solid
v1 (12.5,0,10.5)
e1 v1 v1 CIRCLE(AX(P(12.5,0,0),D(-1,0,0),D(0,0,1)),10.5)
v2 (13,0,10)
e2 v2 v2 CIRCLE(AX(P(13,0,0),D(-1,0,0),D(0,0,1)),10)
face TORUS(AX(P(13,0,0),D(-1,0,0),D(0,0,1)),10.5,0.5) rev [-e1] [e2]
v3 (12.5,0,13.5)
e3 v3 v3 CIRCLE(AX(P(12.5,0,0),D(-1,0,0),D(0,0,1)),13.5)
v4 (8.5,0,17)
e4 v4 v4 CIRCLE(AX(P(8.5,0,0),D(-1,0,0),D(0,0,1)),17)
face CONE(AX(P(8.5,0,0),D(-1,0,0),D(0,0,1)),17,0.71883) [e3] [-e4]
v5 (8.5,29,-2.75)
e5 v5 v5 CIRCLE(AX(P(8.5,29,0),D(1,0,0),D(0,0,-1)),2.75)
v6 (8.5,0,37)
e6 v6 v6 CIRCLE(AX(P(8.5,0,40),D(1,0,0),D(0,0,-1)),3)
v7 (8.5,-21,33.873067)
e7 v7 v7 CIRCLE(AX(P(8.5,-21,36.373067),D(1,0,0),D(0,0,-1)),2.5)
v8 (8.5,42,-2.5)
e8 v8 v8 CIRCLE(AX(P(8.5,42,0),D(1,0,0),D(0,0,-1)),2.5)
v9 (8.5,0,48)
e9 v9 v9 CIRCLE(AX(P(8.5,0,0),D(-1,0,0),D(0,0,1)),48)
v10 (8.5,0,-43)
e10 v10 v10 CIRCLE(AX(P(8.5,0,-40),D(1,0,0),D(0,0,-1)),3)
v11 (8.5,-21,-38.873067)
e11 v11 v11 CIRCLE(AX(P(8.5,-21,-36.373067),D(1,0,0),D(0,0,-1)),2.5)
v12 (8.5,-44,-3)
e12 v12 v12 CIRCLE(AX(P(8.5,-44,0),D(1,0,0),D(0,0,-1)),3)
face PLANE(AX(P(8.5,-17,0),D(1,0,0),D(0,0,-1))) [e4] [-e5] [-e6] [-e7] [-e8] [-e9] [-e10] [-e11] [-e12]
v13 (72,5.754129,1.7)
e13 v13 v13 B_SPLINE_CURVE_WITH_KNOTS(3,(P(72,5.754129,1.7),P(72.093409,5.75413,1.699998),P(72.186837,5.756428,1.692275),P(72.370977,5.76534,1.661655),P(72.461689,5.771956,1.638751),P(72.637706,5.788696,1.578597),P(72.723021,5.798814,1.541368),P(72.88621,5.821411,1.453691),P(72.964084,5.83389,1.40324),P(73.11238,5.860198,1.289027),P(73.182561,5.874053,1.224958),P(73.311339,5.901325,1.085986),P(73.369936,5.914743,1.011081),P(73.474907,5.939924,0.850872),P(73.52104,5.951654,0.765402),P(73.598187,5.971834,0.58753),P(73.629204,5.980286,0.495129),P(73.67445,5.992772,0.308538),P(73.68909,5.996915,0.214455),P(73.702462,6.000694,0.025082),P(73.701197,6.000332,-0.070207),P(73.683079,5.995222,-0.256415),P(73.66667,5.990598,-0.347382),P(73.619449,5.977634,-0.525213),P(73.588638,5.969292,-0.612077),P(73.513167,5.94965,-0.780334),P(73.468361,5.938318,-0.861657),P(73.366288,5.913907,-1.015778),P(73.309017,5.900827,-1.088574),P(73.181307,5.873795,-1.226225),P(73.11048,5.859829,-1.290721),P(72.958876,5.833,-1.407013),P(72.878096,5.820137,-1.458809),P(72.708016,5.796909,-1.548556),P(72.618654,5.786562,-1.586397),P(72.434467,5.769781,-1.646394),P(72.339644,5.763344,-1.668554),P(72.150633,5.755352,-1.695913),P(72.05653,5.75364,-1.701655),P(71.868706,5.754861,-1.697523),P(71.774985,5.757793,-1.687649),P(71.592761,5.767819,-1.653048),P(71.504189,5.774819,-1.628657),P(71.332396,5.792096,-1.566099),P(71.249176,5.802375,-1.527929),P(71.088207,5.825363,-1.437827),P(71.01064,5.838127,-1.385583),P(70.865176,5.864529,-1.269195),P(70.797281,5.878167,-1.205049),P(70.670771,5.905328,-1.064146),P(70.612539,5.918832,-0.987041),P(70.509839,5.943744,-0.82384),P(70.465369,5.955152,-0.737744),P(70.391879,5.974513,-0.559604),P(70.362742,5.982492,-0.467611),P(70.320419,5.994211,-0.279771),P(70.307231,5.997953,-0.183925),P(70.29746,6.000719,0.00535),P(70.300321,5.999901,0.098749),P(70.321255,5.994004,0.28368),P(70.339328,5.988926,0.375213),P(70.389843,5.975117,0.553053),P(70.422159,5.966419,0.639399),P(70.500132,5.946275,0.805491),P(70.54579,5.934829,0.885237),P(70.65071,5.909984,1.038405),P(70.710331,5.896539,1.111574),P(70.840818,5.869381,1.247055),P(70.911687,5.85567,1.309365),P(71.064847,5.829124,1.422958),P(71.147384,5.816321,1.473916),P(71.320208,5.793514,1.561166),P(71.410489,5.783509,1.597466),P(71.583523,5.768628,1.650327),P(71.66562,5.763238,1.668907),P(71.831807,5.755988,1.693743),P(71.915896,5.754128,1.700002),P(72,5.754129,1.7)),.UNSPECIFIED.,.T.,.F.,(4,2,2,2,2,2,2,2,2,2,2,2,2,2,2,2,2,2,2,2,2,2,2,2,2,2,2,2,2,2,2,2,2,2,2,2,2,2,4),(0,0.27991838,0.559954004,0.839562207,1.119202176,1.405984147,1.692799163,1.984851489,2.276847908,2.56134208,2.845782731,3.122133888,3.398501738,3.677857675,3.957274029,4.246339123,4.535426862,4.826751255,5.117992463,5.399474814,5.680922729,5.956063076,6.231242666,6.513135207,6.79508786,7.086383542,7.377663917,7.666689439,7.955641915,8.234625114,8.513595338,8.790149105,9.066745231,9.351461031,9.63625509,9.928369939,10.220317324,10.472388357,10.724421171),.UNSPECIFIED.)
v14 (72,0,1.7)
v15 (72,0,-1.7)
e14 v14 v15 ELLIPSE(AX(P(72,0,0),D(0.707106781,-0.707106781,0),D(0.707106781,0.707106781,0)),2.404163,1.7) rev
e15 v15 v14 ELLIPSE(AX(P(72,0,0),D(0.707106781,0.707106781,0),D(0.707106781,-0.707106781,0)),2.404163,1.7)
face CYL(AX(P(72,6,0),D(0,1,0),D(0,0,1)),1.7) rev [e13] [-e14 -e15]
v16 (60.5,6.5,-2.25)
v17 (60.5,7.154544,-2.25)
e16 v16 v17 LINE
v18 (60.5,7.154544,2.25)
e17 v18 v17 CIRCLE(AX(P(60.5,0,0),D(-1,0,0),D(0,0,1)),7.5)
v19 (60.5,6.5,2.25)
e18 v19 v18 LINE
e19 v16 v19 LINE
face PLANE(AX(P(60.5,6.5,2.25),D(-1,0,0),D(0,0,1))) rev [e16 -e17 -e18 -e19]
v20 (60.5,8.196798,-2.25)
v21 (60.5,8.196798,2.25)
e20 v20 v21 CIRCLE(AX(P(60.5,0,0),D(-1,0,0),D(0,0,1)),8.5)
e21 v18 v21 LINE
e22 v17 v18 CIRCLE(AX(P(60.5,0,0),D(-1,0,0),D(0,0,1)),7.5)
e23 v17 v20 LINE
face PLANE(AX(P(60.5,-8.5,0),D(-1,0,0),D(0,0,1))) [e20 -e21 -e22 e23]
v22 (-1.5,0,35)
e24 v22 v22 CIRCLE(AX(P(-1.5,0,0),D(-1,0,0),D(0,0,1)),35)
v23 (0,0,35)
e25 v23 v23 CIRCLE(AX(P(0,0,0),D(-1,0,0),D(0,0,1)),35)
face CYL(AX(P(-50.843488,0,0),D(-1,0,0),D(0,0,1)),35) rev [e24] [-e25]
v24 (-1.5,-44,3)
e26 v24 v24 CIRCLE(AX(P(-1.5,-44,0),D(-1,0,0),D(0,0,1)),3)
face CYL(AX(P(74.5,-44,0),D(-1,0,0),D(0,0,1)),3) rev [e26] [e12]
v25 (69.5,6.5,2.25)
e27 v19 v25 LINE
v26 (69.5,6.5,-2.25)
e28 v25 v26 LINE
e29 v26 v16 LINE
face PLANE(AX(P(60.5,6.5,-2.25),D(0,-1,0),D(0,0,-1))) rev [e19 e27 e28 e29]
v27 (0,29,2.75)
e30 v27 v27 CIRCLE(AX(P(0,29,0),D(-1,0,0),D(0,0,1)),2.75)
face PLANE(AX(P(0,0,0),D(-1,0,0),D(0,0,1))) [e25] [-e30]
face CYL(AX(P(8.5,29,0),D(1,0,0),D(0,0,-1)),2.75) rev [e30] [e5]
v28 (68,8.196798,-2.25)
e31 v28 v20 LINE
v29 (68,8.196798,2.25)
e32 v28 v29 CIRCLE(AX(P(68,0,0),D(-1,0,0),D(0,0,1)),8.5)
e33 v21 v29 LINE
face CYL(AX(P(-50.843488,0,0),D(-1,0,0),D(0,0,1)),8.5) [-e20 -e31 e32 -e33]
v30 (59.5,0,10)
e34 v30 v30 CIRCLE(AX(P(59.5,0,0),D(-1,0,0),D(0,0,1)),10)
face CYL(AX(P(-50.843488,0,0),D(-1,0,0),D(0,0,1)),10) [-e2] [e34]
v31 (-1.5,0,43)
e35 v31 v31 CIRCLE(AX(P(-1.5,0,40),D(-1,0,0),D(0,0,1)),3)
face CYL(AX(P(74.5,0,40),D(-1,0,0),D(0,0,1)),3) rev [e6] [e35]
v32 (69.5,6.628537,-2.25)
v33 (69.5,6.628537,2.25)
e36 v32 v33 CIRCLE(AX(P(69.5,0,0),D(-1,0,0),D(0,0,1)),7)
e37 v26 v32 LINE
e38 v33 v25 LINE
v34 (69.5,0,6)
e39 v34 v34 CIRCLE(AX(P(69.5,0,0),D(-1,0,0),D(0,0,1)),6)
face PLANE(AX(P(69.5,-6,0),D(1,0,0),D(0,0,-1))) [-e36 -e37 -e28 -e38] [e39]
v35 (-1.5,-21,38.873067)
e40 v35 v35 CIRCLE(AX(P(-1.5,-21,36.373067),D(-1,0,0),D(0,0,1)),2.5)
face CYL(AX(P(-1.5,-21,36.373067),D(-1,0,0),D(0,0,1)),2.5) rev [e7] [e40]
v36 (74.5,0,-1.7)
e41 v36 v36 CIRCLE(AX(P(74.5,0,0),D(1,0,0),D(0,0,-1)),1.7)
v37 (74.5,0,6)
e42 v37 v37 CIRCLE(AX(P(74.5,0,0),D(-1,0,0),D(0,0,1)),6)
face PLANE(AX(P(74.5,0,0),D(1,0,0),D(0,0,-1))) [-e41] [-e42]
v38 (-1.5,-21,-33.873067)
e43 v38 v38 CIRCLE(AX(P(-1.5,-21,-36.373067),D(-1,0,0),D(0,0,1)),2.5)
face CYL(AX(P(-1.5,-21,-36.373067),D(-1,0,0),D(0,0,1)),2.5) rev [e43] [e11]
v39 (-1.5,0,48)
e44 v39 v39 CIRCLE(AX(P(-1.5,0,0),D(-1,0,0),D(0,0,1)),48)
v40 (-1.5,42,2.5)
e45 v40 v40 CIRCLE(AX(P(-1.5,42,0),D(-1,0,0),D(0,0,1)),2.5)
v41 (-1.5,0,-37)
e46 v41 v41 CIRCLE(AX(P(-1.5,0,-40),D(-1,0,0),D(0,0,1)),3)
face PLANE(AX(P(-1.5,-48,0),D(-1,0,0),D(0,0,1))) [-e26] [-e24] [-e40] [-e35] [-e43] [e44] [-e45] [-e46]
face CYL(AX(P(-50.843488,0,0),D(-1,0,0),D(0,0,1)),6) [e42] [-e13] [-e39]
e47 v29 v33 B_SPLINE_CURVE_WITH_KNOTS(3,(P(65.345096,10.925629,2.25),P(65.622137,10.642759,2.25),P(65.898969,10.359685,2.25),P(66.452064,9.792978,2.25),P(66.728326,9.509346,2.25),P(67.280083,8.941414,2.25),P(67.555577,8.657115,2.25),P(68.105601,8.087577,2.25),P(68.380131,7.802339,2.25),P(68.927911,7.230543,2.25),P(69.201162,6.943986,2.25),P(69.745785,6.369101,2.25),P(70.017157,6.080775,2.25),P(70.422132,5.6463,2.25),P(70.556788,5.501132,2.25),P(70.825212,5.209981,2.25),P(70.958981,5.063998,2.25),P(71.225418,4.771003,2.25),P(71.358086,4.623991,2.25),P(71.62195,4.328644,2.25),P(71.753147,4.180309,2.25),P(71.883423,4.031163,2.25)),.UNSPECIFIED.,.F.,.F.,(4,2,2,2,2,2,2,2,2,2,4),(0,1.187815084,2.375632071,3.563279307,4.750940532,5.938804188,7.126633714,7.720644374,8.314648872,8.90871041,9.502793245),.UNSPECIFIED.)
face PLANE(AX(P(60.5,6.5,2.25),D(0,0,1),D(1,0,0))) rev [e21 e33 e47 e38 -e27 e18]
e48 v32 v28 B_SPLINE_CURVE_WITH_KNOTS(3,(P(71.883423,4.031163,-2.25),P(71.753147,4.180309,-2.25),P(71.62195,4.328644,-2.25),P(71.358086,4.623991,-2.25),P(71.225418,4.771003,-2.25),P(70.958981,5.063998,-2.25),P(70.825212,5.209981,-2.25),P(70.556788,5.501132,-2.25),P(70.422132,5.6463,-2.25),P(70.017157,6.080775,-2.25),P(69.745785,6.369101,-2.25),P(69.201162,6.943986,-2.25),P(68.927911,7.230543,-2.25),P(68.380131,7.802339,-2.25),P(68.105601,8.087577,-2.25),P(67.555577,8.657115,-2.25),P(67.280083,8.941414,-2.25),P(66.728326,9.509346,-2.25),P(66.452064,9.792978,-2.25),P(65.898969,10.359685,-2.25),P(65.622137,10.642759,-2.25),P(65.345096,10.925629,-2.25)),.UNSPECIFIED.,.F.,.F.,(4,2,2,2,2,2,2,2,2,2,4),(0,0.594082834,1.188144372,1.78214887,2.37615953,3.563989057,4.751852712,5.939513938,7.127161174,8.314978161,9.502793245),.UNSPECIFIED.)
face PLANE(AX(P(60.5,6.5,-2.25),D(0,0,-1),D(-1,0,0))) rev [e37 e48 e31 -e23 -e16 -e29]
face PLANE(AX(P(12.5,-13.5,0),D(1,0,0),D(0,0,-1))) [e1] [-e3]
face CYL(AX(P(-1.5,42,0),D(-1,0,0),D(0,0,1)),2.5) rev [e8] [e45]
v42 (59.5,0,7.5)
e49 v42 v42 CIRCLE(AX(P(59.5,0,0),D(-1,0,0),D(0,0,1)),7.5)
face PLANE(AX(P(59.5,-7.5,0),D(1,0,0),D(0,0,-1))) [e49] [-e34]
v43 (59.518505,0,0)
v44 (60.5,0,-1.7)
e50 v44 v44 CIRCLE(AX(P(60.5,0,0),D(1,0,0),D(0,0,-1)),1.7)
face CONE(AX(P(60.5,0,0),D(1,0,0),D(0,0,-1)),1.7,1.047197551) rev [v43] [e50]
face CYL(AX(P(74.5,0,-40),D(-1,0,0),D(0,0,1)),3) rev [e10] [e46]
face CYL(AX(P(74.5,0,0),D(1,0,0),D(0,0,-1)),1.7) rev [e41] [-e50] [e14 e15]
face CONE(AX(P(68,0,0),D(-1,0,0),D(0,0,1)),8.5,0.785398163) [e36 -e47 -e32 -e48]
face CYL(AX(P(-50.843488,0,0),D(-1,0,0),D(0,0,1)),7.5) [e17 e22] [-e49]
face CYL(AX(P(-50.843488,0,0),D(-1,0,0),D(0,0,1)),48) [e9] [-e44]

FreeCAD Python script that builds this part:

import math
import FreeCAD as App
import Part
import Sketcher

V = App.Vector
Q = App.Units.Quantity

doc = App.newDocument("Part")
body = doc.addObject("PartDesign::Body", "Body")

sketch1 = doc.addObject("Sketcher::SketchObject", "Sketch")
body.addObject(sketch1)
sketch1.AttachmentSupport = (doc.XY_Plane, [""])
sketch1.MapMode = "FlatFace"
sketch1.addGeometry(Part.LineSegment(V(74.5, 0, 0), V(0, 0, 0)), False)
sketch1.addGeometry(Part.LineSegment(V(0, 0, 0), V(0, -35, 0)), False)
sketch1.addGeometry(Part.LineSegment(V(0, -35, 0), V(-1.5, -35, 0)), False)
sketch1.addGeometry(Part.LineSegment(V(-1.5, -35, 0), V(-1.5, -48, 0)), False)
sketch1.addGeometry(Part.LineSegment(V(-1.5, -48, 0), V(8.5, -48, 0)), False)
sketch1.addGeometry(Part.LineSegment(V(8.5, -48, 0), V(8.5, -17, 0)), False)
sketch1.addGeometry(Part.LineSegment(V(8.5, -17, 0), V(12.5, -13.5, 0)), False)
sketch1.addGeometry(Part.LineSegment(V(12.5, -13.5, 0), V(12.5, -10.5, 0)), False)
sketch1.addGeometry(Part.ArcOfCircle(Part.Circle(V(13, -10.5, 0), V(0, 0, 1), 0.5), math.radians(90), math.radians(180)), False)
sketch1.addGeometry(Part.LineSegment(V(13, -10, 0), V(59.5, -10, 0)), False)
sketch1.addGeometry(Part.LineSegment(V(59.5, -10, 0), V(59.5, -7.5, 0)), False)
sketch1.addGeometry(Part.LineSegment(V(59.5, -7.5, 0), V(60.5, -7.5, 0)), False)
sketch1.addGeometry(Part.LineSegment(V(60.5, -7.5, 0), V(60.5, -8.5, 0)), False)
sketch1.addGeometry(Part.LineSegment(V(60.5, -8.5, 0), V(68, -8.5, 0)), False)
sketch1.addGeometry(Part.LineSegment(V(68, -8.5, 0), V(69.5, -7, 0)), False)
sketch1.addGeometry(Part.LineSegment(V(69.5, -7, 0), V(69.5, -6, 0)), False)
sketch1.addGeometry(Part.LineSegment(V(69.5, -6, 0), V(74.5, -6, 0)), False)
sketch1.addGeometry(Part.LineSegment(V(74.5, -6, 0), V(74.5, 0, 0)), False)
sketch1.addConstraint(Sketcher.Constraint("Coincident", 0, 2, 1, 1))
sketch1.addConstraint(Sketcher.Constraint("Coincident", 1, 2, 2, 1))
sketch1.addConstraint(Sketcher.Constraint("Coincident", 2, 2, 3, 1))
sketch1.addConstraint(Sketcher.Constraint("Coincident", 3, 2, 4, 1))
sketch1.addConstraint(Sketcher.Constraint("Coincident", 4, 2, 5, 1))
sketch1.addConstraint(Sketcher.Constraint("Coincident", 5, 2, 6, 1))
sketch1.addConstraint(Sketcher.Constraint("Coincident", 6, 2, 7, 1))
sketch1.addConstraint(Sketcher.Constraint("Tangent", 7, 2, 8, 2))
sketch1.addConstraint(Sketcher.Constraint("Tangent", 8, 1, 9, 1))
sketch1.addConstraint(Sketcher.Constraint("Coincident", 9, 2, 10, 1))
sketch1.addConstraint(Sketcher.Constraint("Coincident", 10, 2, 11, 1))
sketch1.addConstraint(Sketcher.Constraint("Coincident", 11, 2, 12, 1))
sketch1.addConstraint(Sketcher.Constraint("Coincident", 12, 2, 13, 1))
sketch1.addConstraint(Sketcher.Constraint("Coincident", 13, 2, 14, 1))
sketch1.addConstraint(Sketcher.Constraint("Coincident", 14, 2, 15, 1))
sketch1.addConstraint(Sketcher.Constraint("Coincident", 15, 2, 16, 1))
sketch1.addConstraint(Sketcher.Constraint("Coincident", 16, 2, 17, 1))
sketch1.addConstraint(Sketcher.Constraint("Coincident", 17, 2, 0, 1))
sketch1.addConstraint(Sketcher.Constraint("Horizontal", 0))
sketch1.addConstraint(Sketcher.Constraint("Vertical", 1))
sketch1.addConstraint(Sketcher.Constraint("Horizontal", 2))
sketch1.addConstraint(Sketcher.Constraint("Vertical", 3))
sketch1.addConstraint(Sketcher.Constraint("Horizontal", 4))
sketch1.addConstraint(Sketcher.Constraint("Vertical", 5))
sketch1.addConstraint(Sketcher.Constraint("Vertical", 7))
sketch1.addConstraint(Sketcher.Constraint("Horizontal", 9))
sketch1.addConstraint(Sketcher.Constraint("Vertical", 10))
sketch1.addConstraint(Sketcher.Constraint("Horizontal", 11))
sketch1.addConstraint(Sketcher.Constraint("Vertical", 12))
sketch1.addConstraint(Sketcher.Constraint("Horizontal", 13))
sketch1.addConstraint(Sketcher.Constraint("Vertical", 15))
sketch1.addConstraint(Sketcher.Constraint("Horizontal", 16))
sketch1.addConstraint(Sketcher.Constraint("Vertical", 17))
sketch1.addConstraint(Sketcher.Constraint("Coincident", 0, 2, -1, 1))
sketch1.addConstraint(Sketcher.Constraint("Equal", 11, 12))
sketch1.addConstraint(Sketcher.Constraint("Equal", 12, 15))
sketch1.addConstraint(Sketcher.Constraint("Radius", 8, Q("0.5 mm")))
sketch1.addConstraint(Sketcher.Constraint("DistanceX", 4, 1, 4, 2, Q("10 mm")))
sketch1.addConstraint(Sketcher.Constraint("DistanceX", 11, 1, 11, 2, Q("1 mm")))
sketch1.addConstraint(Sketcher.Constraint("DistanceX", 16, 1, 16, 2, Q("5 mm")))
sketch1.addConstraint(Sketcher.Constraint("DistanceY", 1, 2, 1, 1, Q("35 mm")))
sketch1.addConstraint(Sketcher.Constraint("DistanceY", 3, 2, 3, 1, Q("13 mm")))
sketch1.addConstraint(Sketcher.Constraint("DistanceY", 5, 1, 5, 2, Q("31 mm")))
sketch1.addConstraint(Sketcher.Constraint("DistanceY", 7, 1, 7, 2, Q("3 mm")))
sketch1.addConstraint(Sketcher.Constraint("DistanceY", 17, 1, 17, 2, Q("6 mm")))
sketch1.addConstraint(Sketcher.Constraint("Angle", 14, Q("45 deg")))
sketch1.addConstraint(Sketcher.Constraint("DistanceX", 0, 2, 0, 1, Q("74.5 mm")))
sketch1.addConstraint(Sketcher.Constraint("DistanceX", 2, 2, 2, 1, Q("1.5 mm")))
sketch1.addConstraint(Sketcher.Constraint("DistanceX", 9, 1, 9, 2, Q("46.5 mm")))
sketch1.addConstraint(Sketcher.Constraint("DistanceX", 13, 1, 13, 2, Q("7.5 mm")))
sketch1.addConstraint(Sketcher.Constraint("DistanceY", 10, 1, 10, 2, Q("2.5 mm")))
sketch1.addConstraint(Sketcher.Constraint("DistanceX", -1, 1, 8, 3, Q("13 mm")))
revolution = doc.addObject("PartDesign::Revolution", "Revolution")
body.addObject(revolution)
revolution.Profile = sketch1
revolution.ReferenceAxis = (sketch1, ["H_Axis"])
revolution.Angle = 360

sketch2 = doc.addObject("Sketcher::SketchObject", "Sketch001")
body.addObject(sketch2)
sketch2.AttachmentSupport = (doc.XZ_Plane, [""])
sketch2.MapMode = "FlatFace"
sketch2.addGeometry(Part.LineSegment(V(59.518505, 0, 0), V(74.5, 0, 0)), False)
sketch2.addGeometry(Part.LineSegment(V(74.5, 0, 0), V(74.5, -1.7, 0)), False)
sketch2.addGeometry(Part.LineSegment(V(74.5, -1.7, 0), V(60.5, -1.7, 0)), False)
sketch2.addGeometry(Part.LineSegment(V(60.5, -1.7, 0), V(59.518505, 0, 0)), False)
sketch2.addConstraint(Sketcher.Constraint("Coincident", 0, 2, 1, 1))
sketch2.addConstraint(Sketcher.Constraint("Coincident", 1, 2, 2, 1))
sketch2.addConstraint(Sketcher.Constraint("Coincident", 2, 2, 3, 1))
sketch2.addConstraint(Sketcher.Constraint("Coincident", 3, 2, 0, 1))
sketch2.addConstraint(Sketcher.Constraint("Horizontal", 0))
sketch2.addConstraint(Sketcher.Constraint("Vertical", 1))
sketch2.addConstraint(Sketcher.Constraint("Horizontal", 2))
sketch2.addConstraint(Sketcher.Constraint("PointOnObject", 0, 2, -1))
sketch2.addConstraint(Sketcher.Constraint("DistanceX", 2, 2, 2, 1, Q("14 mm")))
sketch2.addConstraint(Sketcher.Constraint("Angle", 3, Q("120 deg")))
sketch2.addConstraint(Sketcher.Constraint("DistanceY", 1, 2, 1, 1, Q("1.7 mm")))
sketch2.addConstraint(Sketcher.Constraint("DistanceX", -1, 1, 0, 2, Q("74.5 mm")))
groove = doc.addObject("PartDesign::Groove", "Groove")
body.addObject(groove)
groove.Profile = sketch2
groove.ReferenceAxis = (sketch2, ["H_Axis"])
groove.Angle = 360

sketch3 = doc.addObject("Sketcher::SketchObject", "Sketch002")
body.addObject(sketch3)
sketch3.AttachmentSupport = (doc.YZ_Plane, [""])
sketch3.MapMode = "FlatFace"
sketch3.AttachmentOffset = App.Placement(V(0, 0, -1.5), App.Rotation())
sketch3.addGeometry(Part.Circle(V(0, -40, 0), V(0, 0, 1), 3), False)
sketch3.addGeometry(Part.Circle(V(0, 40, 0), V(0, 0, 1), 3), False)
sketch3.addConstraint(Sketcher.Constraint("Equal", 0, 1))
sketch3.addConstraint(Sketcher.Constraint("Symmetric", 0, 3, 1, 3, -1, 1))
sketch3.addConstraint(Sketcher.Constraint("PointOnObject", 0, 3, -2))
sketch3.addConstraint(Sketcher.Constraint("Diameter", 0, Q("6 mm")))
sketch3.addConstraint(Sketcher.Constraint("DistanceY", 0, 3, -1, 1, Q("40 mm")))
pocket1 = doc.addObject("PartDesign::Pocket", "Pocket")
body.addObject(pocket1)
pocket1.Profile = sketch3
pocket1.Type = "ThroughAll"
pocket1.Reversed = True

sketch4 = doc.addObject("Sketcher::SketchObject", "Sketch003")
body.addObject(sketch4)
sketch4.AttachmentSupport = (doc.YZ_Plane, [""])
sketch4.MapMode = "FlatFace"
sketch4.AttachmentOffset = App.Placement(V(0, 0, -1.5), App.Rotation())
sketch4.addGeometry(Part.Circle(V(-44, 0, 0), V(0, 0, 1), 3), False)
sketch4.addConstraint(Sketcher.Constraint("PointOnObject", 0, 3, -1))
sketch4.addConstraint(Sketcher.Constraint("Diameter", 0, Q("6 mm")))
sketch4.addConstraint(Sketcher.Constraint("DistanceX", 0, 3, -1, 1, Q("44 mm")))
pocket2 = doc.addObject("PartDesign::Pocket", "Pocket001")
body.addObject(pocket2)
pocket2.Profile = sketch4
pocket2.Type = "ThroughAll"
pocket2.Reversed = True

sketch5 = doc.addObject("Sketcher::SketchObject", "Sketch004")
body.addObject(sketch5)
sketch5.AttachmentSupport = (doc.YZ_Plane, [""])
sketch5.MapMode = "FlatFace"
sketch5.AttachmentOffset = App.Placement(V(0, 0, -1.5), App.Rotation())
sketch5.addGeometry(Part.Circle(V(42, 0, 0), V(0, 0, 1), 2.5), False)
sketch5.addGeometry(Part.Circle(V(-21, -36.373067, 0), V(0, 0, 1), 2.5), False)
sketch5.addGeometry(Part.Circle(V(-21, 36.373067, 0), V(0, 0, 1), 2.5), False)
sketch5.addConstraint(Sketcher.Constraint("Equal", 0, 1))
sketch5.addConstraint(Sketcher.Constraint("Equal", 1, 2))
sketch5.addConstraint(Sketcher.Constraint("Symmetric", 1, 3, 2, 3, -1))
sketch5.addConstraint(Sketcher.Constraint("PointOnObject", 0, 3, -1))
sketch5.addConstraint(Sketcher.Constraint("Diameter", 0, Q("5 mm")))
sketch5.addConstraint(Sketcher.Constraint("DistanceX", -1, 1, 0, 3, Q("42 mm")))
sketch5.addConstraint(Sketcher.Constraint("DistanceX", 1, 3, -1, 1, Q("21 mm")))
sketch5.addConstraint(Sketcher.Constraint("DistanceY", 1, 3, -1, 1, Q("36.373067 mm")))
doc.recompute()
hole = doc.addObject("PartDesign::Hole", "Hole")
body.addObject(hole)
hole.Profile = sketch5
hole.ThreadType = "None"
hole.Diameter = 5
hole.DepthType = "Dimension"
hole.Depth = 15
hole.DrillPoint = "Angled"
hole.DrillPointAngle = 118
hole.Reversed = True

sketch6 = doc.addObject("Sketcher::SketchObject", "Sketch005")
body.addObject(sketch6)
sketch6.AttachmentSupport = (doc.XZ_Plane, [""])
sketch6.MapMode = "FlatFace"
sketch6.AttachmentOffset = App.Placement(V(0, 0, -6), App.Rotation())
sketch6.addGeometry(Part.Circle(V(72, 0, 0), V(0, 0, 1), 1.7), False)
sketch6.addConstraint(Sketcher.Constraint("PointOnObject", 0, 3, -1))
sketch6.addConstraint(Sketcher.Constraint("Diameter", 0, Q("3.4 mm")))
sketch6.addConstraint(Sketcher.Constraint("DistanceX", -1, 1, 0, 3, Q("72 mm")))
pocket3 = doc.addObject("PartDesign::Pocket", "Pocket002")
body.addObject(pocket3)
pocket3.Profile = sketch6
pocket3.Type = "UpToFirst"
pocket3.Reversed = True

sketch7 = doc.addObject("Sketcher::SketchObject", "Sketch006")
body.addObject(sketch7)
sketch7.AttachmentSupport = (doc.XZ_Plane, [""])
sketch7.MapMode = "FlatFace"
sketch7.AttachmentOffset = App.Placement(V(0, 0, -8.5), App.Rotation())
sketch7.addGeometry(Part.LineSegment(V(70.947704, 2.25, 0), V(70.947704, -2.25, 0)), False)
sketch7.addGeometry(Part.LineSegment(V(70.947704, -2.25, 0), V(60.5, -2.25, 0)), False)
sketch7.addGeometry(Part.LineSegment(V(60.5, -2.25, 0), V(60.5, 2.25, 0)), False)
sketch7.addGeometry(Part.LineSegment(V(60.5, 2.25, 0), V(70.947704, 2.25, 0)), False)
sketch7.addConstraint(Sketcher.Constraint("Coincident", 0, 2, 1, 1))
sketch7.addConstraint(Sketcher.Constraint("Coincident", 1, 2, 2, 1))
sketch7.addConstraint(Sketcher.Constraint("Coincident", 2, 2, 3, 1))
sketch7.addConstraint(Sketcher.Constraint("Coincident", 3, 2, 0, 1))
sketch7.addConstraint(Sketcher.Constraint("Vertical", 0))
sketch7.addConstraint(Sketcher.Constraint("Horizontal", 1))
sketch7.addConstraint(Sketcher.Constraint("Vertical", 2))
sketch7.addConstraint(Sketcher.Constraint("Horizontal", 3))
sketch7.addConstraint(Sketcher.Constraint("DistanceY", 0, 2, 0, 1, Q("4.5 mm")))
sketch7.addConstraint(Sketcher.Constraint("DistanceX", -1, 1, 1, 2, Q("60.5 mm")))
sketch7.addConstraint(Sketcher.Constraint("DistanceY", 0, 2, -1, 1, Q("2.25 mm")))
sketch7.addConstraint(Sketcher.Constraint("DistanceX", 1, 2, 1, 1, Q("10.447704 mm")))
pocket4 = doc.addObject("PartDesign::Pocket", "Pocket003")
body.addObject(pocket4)
pocket4.Profile = sketch7
pocket4.Length = 2
pocket4.Reversed = True

sketch8 = doc.addObject("Sketcher::SketchObject", "Sketch007")
body.addObject(sketch8)
sketch8.AttachmentSupport = (doc.YZ_Plane, [""])
sketch8.MapMode = "FlatFace"
sketch8.AttachmentOffset = App.Placement(V(0, 0, 8.5), App.Rotation())
sketch8.addGeometry(Part.Circle(V(29, 0, 0), V(0, 0, 1), 2.75), False)
sketch8.addConstraint(Sketcher.Constraint("PointOnObject", 0, 3, -1))
sketch8.addConstraint(Sketcher.Constraint("Diameter", 0, Q("5.5 mm")))
sketch8.addConstraint(Sketcher.Constraint("DistanceX", -1, 1, 0, 3, Q("29 mm")))
doc.recompute()
hole2 = doc.addObject("PartDesign::Hole", "Hole001")
body.addObject(hole2)
hole2.Profile = sketch8
hole2.ThreadType = "None"
hole2.Diameter = 5.5
hole2.DepthType = "Dimension"
hole2.Depth = 12
hole2.DrillPoint = "Angled"
hole2.DrillPointAngle = 118

doc.recompute()
